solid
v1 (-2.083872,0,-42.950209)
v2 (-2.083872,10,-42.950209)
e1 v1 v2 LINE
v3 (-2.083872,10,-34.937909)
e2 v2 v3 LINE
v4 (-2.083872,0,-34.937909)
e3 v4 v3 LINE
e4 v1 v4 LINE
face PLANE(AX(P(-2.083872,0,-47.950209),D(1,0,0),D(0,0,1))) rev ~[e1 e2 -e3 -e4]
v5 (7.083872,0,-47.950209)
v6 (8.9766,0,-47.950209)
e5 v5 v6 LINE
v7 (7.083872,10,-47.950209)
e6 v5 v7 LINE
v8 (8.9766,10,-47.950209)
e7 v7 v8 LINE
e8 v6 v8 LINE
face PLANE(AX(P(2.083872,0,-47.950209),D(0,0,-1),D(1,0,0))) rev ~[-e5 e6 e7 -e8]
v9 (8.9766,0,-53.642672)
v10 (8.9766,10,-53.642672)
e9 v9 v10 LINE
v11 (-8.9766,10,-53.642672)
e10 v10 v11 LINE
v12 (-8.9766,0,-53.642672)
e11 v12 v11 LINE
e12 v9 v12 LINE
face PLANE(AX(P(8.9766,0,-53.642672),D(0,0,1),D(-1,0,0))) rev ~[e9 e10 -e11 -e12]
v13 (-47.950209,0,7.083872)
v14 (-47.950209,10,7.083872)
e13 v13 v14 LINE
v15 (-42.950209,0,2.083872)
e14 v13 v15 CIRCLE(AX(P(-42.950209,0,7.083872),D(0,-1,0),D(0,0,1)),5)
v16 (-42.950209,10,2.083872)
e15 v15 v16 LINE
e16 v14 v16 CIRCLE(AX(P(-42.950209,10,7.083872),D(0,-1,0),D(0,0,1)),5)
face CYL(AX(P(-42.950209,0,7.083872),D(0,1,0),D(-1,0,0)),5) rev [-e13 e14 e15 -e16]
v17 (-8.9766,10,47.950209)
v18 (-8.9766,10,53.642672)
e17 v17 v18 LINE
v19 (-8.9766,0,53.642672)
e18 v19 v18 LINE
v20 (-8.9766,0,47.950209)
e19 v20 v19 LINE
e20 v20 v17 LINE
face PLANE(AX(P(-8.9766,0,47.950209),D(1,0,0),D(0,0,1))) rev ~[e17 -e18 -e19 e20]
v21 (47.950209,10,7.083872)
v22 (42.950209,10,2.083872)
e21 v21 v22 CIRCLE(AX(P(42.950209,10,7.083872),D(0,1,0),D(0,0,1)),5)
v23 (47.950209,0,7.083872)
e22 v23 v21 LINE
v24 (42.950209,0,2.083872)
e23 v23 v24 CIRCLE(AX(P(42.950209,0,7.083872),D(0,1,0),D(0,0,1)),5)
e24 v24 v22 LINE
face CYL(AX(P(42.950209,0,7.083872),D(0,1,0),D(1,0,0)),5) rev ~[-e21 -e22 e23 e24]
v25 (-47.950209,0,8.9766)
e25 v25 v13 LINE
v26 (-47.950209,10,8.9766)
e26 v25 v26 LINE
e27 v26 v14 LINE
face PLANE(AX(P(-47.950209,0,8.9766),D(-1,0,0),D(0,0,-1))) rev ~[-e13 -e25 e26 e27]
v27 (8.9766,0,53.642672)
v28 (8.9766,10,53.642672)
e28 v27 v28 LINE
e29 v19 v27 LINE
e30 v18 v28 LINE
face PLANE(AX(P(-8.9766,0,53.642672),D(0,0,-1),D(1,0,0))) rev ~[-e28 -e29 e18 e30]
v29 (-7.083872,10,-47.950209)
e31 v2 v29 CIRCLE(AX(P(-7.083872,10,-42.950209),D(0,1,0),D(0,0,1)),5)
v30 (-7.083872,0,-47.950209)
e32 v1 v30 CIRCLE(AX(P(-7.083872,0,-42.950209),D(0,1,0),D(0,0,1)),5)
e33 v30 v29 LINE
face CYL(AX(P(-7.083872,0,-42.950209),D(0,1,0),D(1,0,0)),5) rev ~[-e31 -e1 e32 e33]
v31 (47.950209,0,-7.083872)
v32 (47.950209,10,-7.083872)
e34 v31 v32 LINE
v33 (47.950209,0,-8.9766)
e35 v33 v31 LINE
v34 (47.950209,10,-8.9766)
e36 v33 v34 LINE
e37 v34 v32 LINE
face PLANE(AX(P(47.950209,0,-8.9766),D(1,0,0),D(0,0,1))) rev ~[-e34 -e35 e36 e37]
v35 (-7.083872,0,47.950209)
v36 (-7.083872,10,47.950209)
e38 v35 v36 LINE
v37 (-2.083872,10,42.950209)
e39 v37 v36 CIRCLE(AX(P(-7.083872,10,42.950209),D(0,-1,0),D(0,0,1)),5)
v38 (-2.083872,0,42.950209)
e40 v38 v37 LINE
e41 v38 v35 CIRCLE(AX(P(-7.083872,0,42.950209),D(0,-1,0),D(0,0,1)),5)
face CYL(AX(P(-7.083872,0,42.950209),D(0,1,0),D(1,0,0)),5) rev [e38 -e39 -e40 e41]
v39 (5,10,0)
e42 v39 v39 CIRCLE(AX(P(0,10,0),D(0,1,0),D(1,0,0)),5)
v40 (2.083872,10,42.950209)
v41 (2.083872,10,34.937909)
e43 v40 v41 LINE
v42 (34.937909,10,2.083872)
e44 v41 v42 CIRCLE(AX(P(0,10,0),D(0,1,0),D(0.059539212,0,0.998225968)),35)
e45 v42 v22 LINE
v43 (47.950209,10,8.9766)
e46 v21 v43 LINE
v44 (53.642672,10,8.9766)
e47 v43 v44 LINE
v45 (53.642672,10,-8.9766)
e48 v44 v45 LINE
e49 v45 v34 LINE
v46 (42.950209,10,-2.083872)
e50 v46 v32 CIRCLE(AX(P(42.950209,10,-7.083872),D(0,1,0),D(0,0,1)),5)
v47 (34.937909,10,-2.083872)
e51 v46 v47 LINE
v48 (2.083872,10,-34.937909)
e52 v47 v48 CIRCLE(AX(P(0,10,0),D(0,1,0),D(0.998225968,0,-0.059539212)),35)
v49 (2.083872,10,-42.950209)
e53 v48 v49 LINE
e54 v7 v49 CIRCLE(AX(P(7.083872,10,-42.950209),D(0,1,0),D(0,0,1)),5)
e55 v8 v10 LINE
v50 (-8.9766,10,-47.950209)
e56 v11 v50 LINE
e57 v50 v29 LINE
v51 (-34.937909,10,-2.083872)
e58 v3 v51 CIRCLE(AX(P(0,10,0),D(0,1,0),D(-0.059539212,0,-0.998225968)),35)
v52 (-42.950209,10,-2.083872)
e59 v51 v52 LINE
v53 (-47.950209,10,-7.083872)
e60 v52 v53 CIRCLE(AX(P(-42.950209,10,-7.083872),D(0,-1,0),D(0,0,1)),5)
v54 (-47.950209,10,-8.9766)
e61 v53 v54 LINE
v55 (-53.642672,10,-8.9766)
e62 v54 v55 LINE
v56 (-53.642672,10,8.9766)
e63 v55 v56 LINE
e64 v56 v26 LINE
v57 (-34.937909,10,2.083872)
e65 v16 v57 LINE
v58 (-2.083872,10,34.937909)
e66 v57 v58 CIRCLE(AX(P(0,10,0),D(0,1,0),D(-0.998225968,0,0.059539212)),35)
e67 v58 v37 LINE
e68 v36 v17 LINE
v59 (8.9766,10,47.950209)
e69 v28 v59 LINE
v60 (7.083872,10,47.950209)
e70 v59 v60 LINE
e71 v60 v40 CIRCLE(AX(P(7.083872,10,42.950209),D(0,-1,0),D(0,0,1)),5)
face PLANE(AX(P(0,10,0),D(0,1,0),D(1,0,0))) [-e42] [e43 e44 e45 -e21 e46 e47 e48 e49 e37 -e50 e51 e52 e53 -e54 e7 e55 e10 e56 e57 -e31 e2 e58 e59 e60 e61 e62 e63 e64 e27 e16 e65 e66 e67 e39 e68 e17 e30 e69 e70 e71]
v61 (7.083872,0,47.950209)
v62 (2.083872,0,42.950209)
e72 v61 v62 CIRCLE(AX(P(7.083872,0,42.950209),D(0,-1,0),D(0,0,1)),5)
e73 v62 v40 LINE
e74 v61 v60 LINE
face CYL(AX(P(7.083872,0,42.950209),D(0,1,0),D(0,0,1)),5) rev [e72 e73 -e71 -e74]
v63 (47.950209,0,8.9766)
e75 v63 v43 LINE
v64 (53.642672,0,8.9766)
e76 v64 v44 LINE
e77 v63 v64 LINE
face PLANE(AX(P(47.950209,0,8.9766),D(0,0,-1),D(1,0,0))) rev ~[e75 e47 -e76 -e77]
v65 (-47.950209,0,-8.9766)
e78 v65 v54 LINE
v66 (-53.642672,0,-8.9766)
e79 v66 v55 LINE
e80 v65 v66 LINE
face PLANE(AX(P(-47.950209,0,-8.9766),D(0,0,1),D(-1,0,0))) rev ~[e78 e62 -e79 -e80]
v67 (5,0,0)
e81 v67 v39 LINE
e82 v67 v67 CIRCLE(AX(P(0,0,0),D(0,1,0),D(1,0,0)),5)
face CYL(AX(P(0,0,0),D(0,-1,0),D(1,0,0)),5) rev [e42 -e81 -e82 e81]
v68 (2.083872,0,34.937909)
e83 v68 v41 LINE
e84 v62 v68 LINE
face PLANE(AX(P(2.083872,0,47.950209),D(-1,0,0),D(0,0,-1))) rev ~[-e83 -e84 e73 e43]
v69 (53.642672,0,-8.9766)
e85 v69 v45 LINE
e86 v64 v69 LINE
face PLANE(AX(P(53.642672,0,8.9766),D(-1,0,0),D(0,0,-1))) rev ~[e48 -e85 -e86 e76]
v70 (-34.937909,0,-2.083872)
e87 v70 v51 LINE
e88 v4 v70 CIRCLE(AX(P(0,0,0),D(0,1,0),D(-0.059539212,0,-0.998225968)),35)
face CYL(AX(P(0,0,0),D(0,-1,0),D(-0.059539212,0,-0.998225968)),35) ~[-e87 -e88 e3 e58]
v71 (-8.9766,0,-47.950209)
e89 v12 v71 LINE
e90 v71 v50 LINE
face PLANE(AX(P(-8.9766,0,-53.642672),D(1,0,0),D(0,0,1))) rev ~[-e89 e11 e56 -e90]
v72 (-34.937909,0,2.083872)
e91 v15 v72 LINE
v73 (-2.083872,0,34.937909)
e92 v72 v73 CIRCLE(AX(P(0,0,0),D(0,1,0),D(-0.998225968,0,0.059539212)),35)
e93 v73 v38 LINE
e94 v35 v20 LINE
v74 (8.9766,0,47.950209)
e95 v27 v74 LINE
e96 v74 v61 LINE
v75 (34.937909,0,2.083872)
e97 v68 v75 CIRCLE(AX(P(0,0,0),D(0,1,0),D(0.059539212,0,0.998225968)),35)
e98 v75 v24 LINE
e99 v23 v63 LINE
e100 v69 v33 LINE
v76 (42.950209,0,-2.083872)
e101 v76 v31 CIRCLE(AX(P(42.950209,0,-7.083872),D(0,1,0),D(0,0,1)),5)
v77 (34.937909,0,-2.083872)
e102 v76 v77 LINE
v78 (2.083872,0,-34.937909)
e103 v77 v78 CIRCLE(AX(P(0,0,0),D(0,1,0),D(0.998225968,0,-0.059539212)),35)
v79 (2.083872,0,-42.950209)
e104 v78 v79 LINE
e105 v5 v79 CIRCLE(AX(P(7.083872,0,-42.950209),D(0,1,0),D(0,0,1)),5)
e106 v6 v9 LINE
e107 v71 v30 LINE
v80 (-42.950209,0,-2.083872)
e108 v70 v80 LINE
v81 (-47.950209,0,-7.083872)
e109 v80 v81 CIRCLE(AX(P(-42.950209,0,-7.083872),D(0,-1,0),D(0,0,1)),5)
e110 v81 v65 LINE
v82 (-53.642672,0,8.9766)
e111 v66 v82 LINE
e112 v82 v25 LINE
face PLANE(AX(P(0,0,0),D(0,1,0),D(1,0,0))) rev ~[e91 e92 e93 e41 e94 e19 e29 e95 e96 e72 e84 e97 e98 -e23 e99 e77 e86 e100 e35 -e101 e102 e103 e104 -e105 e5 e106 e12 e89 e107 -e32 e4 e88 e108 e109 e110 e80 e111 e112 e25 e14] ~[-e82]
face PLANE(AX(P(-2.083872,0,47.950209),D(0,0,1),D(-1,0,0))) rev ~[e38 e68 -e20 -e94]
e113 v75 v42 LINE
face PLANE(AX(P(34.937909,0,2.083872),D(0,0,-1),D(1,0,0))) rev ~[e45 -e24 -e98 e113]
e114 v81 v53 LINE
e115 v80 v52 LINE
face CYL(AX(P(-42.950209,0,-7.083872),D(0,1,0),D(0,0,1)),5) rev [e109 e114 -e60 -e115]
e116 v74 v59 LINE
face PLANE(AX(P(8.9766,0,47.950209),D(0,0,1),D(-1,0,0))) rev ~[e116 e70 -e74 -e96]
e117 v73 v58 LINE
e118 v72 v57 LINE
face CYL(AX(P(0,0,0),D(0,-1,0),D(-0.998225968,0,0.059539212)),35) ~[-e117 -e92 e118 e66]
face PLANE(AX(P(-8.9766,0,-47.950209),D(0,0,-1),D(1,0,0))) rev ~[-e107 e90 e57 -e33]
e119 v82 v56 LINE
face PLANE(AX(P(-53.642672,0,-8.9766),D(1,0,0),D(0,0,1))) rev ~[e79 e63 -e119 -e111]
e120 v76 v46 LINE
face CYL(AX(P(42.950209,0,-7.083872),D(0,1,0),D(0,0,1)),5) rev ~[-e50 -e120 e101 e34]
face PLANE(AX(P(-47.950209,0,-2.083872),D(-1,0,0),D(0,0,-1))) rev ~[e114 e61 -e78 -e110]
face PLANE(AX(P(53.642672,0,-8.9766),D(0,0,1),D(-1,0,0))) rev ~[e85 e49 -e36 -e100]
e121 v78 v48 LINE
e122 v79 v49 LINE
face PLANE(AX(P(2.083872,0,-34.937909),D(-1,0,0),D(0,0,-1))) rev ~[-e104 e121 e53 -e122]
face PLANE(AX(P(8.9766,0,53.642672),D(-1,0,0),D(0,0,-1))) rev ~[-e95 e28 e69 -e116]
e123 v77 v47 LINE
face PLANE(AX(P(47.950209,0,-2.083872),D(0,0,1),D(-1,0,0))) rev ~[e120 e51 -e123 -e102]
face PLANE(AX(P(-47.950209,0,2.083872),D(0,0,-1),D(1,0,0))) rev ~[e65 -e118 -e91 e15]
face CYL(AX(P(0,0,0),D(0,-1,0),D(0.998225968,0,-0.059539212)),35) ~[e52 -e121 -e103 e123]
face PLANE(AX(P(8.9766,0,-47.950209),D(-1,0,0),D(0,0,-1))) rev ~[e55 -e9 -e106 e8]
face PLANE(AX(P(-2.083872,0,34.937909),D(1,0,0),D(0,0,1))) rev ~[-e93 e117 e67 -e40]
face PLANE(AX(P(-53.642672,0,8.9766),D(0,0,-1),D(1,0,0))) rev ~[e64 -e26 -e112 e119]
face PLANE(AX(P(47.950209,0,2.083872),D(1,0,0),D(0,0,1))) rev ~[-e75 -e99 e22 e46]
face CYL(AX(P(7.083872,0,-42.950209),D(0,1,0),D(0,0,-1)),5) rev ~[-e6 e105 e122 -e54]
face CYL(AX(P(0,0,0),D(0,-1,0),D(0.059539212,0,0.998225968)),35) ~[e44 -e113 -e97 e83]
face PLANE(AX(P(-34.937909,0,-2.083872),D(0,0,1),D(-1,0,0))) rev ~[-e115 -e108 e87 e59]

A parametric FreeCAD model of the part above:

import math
import FreeCAD as App
import Part
import Sketcher

V = App.Vector


def edges_at(feature, points):
    """Names of the edges that pass closest to the given points."""
    edges = feature.Shape.Edges
    near = lambda p: min(range(len(edges)), key=lambda i: edges[i].distToShape(Part.Vertex(*p))[0])
    return sorted({f"Edge{near(p) + 1}" for p in points})

doc = App.newDocument("Part")
params = doc.addObject("Spreadsheet::Sheet", "Params")
for row, (alias, value) in enumerate([
    ("sketch1_diameter", "10 mm"),
    ("sketch1_radius", "35 mm"),
    ("pad1_length", "10 mm"),
    ("fillet_radius", "5 mm"),
], start=1):
    params.set(f"A{row}", alias)
    params.set(f"B{row}", "=" + value)
    params.setAlias(f"B{row}", alias)

body = doc.addObject("PartDesign::Body", "Body")

# Sketch on XZ plane
sketch1 = body.newObject("Sketcher::SketchObject", "Sketch")
sketch1.AttachmentSupport = (doc.getObject("XZ_Plane"), [""])
sketch1.MapMode = "FlatFace"
sketch1.addGeometry([
    Part.LineSegment(V(-2, -48, 0), V(-2, -35, 0)),  # 0
    Part.ArcOfCircle(Part.Circle(V(0, 0, 0), V(0, 0, 1), 35), math.radians(-177), math.radians(-93)),  # 1
    Part.LineSegment(V(-35, -2, 0), V(-48, -2, 0)),  # 2
    Part.LineSegment(V(-48, -2, 0), V(-48, -9, 0)),  # 3
    Part.LineSegment(V(-48, -9, 0), V(-54, -9, 0)),  # 4
    Part.LineSegment(V(-54, -9, 0), V(-54, 9, 0)),  # 5
    Part.LineSegment(V(-54, 9, 0), V(-48, 9, 0)),  # 6
    Part.LineSegment(V(-48, 9, 0), V(-48, 2, 0)),  # 7
    Part.LineSegment(V(-48, 2, 0), V(-35, 2, 0)),  # 8
    Part.ArcOfCircle(Part.Circle(V(0, 0, 0), V(0, 0, 1), 35), math.radians(93), math.radians(177)),  # 9
    Part.LineSegment(V(-2, 35, 0), V(-2, 48, 0)),  # 10
    Part.LineSegment(V(-2, 48, 0), V(-9, 48, 0)),  # 11
    Part.LineSegment(V(-9, 48, 0), V(-9, 54, 0)),  # 12
    Part.LineSegment(V(-9, 54, 0), V(9, 54, 0)),  # 13
    Part.LineSegment(V(9, 54, 0), V(9, 48, 0)),  # 14
    Part.LineSegment(V(9, 48, 0), V(2, 48, 0)),  # 15
    Part.LineSegment(V(2, 48, 0), V(2, 35, 0)),  # 16
    Part.ArcOfCircle(Part.Circle(V(0, 0, 0), V(0, 0, 1), 35), math.radians(3), math.radians(87)),  # 17
    Part.LineSegment(V(35, 2, 0), V(48, 2, 0)),  # 18
    Part.LineSegment(V(48, 2, 0), V(48, 9, 0)),  # 19
    Part.LineSegment(V(48, 9, 0), V(54, 9, 0)),  # 20
    Part.LineSegment(V(54, 9, 0), V(54, -9, 0)),  # 21
    Part.LineSegment(V(54, -9, 0), V(48, -9, 0)),  # 22
    Part.LineSegment(V(48, -9, 0), V(48, -2, 0)),  # 23
    Part.LineSegment(V(48, -2, 0), V(35, -2, 0)),  # 24
    Part.ArcOfCircle(Part.Circle(V(0, 0, 0), V(0, 0, 1), 35), math.radians(-87), math.radians(-3)),  # 25
    Part.LineSegment(V(2, -35, 0), V(2, -48, 0)),  # 26
    Part.LineSegment(V(2, -48, 0), V(9, -48, 0)),  # 27
    Part.LineSegment(V(9, -48, 0), V(9, -54, 0)),  # 28
    Part.LineSegment(V(9, -54, 0), V(-9, -54, 0)),  # 29
    Part.LineSegment(V(-9, -54, 0), V(-9, -48, 0)),  # 30
    Part.LineSegment(V(-9, -48, 0), V(-2, -48, 0)),  # 31
    Part.Circle(V(0, 0, 0), V(0, 0, 1), 5),  # 32
], False)
sketch1.addConstraint([
    Sketcher.Constraint("Coincident", 0, 2, 1, 2),
    Sketcher.Constraint("Coincident", 1, 1, 2, 1),
    Sketcher.Constraint("Coincident", 2, 2, 3, 1),
    Sketcher.Constraint("Coincident", 3, 2, 4, 1),
    Sketcher.Constraint("Coincident", 4, 2, 5, 1),
    Sketcher.Constraint("Coincident", 5, 2, 6, 1),
    Sketcher.Constraint("Coincident", 6, 2, 7, 1),
    Sketcher.Constraint("Coincident", 7, 2, 8, 1),
    Sketcher.Constraint("Coincident", 8, 2, 9, 2),
    Sketcher.Constraint("Coincident", 9, 1, 10, 1),
    Sketcher.Constraint("Coincident", 10, 2, 11, 1),
    Sketcher.Constraint("Coincident", 11, 2, 12, 1),
    Sketcher.Constraint("Coincident", 12, 2, 13, 1),
    Sketcher.Constraint("Coincident", 13, 2, 14, 1),
    Sketcher.Constraint("Coincident", 14, 2, 15, 1),
    Sketcher.Constraint("Coincident", 15, 2, 16, 1),
    Sketcher.Constraint("Coincident", 16, 2, 17, 2),
    Sketcher.Constraint("Coincident", 17, 1, 18, 1),
    Sketcher.Constraint("Coincident", 18, 2, 19, 1),
    Sketcher.Constraint("Coincident", 19, 2, 20, 1),
    Sketcher.Constraint("Coincident", 20, 2, 21, 1),
    Sketcher.Constraint("Coincident", 21, 2, 22, 1),
    Sketcher.Constraint("Coincident", 22, 2, 23, 1),
    Sketcher.Constraint("Coincident", 23, 2, 24, 1),
    Sketcher.Constraint("Coincident", 24, 2, 25, 2),
    Sketcher.Constraint("Coincident", 25, 1, 26, 1),
    Sketcher.Constraint("Coincident", 26, 2, 27, 1),
    Sketcher.Constraint("Coincident", 27, 2, 28, 1),
    Sketcher.Constraint("Coincident", 28, 2, 29, 1),
    Sketcher.Constraint("Coincident", 29, 2, 30, 1),
    Sketcher.Constraint("Coincident", 30, 2, 31, 1),
    Sketcher.Constraint("Coincident", 31, 2, 0, 1),
    Sketcher.Constraint("Vertical", 0),
    Sketcher.Constraint("Horizontal", 2),
    Sketcher.Constraint("Vertical", 3),
    Sketcher.Constraint("Horizontal", 4),
    Sketcher.Constraint("Vertical", 5),
    Sketcher.Constraint("Horizontal", 6),
    Sketcher.Constraint("Vertical", 7),
    Sketcher.Constraint("Horizontal", 8),
    Sketcher.Constraint("Vertical", 10),
    Sketcher.Constraint("Horizontal", 11),
    Sketcher.Constraint("Vertical", 12),
    Sketcher.Constraint("Horizontal", 13),
    Sketcher.Constraint("Vertical", 14),
    Sketcher.Constraint("Horizontal", 15),
    Sketcher.Constraint("Vertical", 16),
    Sketcher.Constraint("Horizontal", 18),
    Sketcher.Constraint("Vertical", 19),
    Sketcher.Constraint("Horizontal", 20),
    Sketcher.Constraint("Vertical", 21),
    Sketcher.Constraint("Horizontal", 22),
    Sketcher.Constraint("Vertical", 23),
    Sketcher.Constraint("Horizontal", 24),
    Sketcher.Constraint("Vertical", 26),
    Sketcher.Constraint("Horizontal", 27),
    Sketcher.Constraint("Vertical", 28),
    Sketcher.Constraint("Horizontal", 29),
    Sketcher.Constraint("Vertical", 30),
    Sketcher.Constraint("Horizontal", 31),
    Sketcher.Constraint("Coincident", 1, 3, -1, 1),
    Sketcher.Constraint("Coincident", 9, 3, -1, 1),
    Sketcher.Constraint("Coincident", 17, 3, -1, 1),
    Sketcher.Constraint("Coincident", 25, 3, -1, 1),
    Sketcher.Constraint("Coincident", 32, 3, -1, 1),
    Sketcher.Constraint("Equal", 1, 9),
    Sketcher.Constraint("Equal", 9, 17),
    Sketcher.Constraint("Equal", 17, 25),
    Sketcher.Constraint("Symmetric", 2, 2, 18, 2, -1, 1),
    Sketcher.Constraint("Symmetric", 4, 2, 20, 2, -1, 1),
    Sketcher.Constraint("Symmetric", 6, 2, 22, 2, -1, 1),
    Sketcher.Constraint("Symmetric", 10, 2, 26, 2, -1, 1),
    Sketcher.Constraint("Symmetric", 12, 2, 28, 2, -1, 1),
    Sketcher.Constraint("Symmetric", 14, 2, 30, 2, -1, 1),
    Sketcher.Constraint("Symmetric", 11, 2, 14, 2, -2),
    Sketcher.Constraint("Symmetric", 7, 2, 18, 2, -2),
    Sketcher.Constraint("Horizontal", 9, 1, 16, 2),
    Sketcher.Constraint("Horizontal", 6, 2, 19, 2),
    Sketcher.Constraint("Horizontal", 2, 2, 23, 2),
    Sketcher.Constraint("Horizontal", 0, 2, 25, 1),
    Sketcher.Constraint("Equal", 24, 0),
    Sketcher.Constraint("Equal", 31, 3),
    Sketcher.Constraint("Equal", 29, 5),
    Sketcher.Constraint("Equal", 22, 12),
    Sketcher.Constraint("Diameter", 32, 10.0),
    Sketcher.Constraint("Radius", 1, 35.0),
    Sketcher.Constraint("DistanceX", 2, 2, 2, 1, 13.0123),
    Sketcher.Constraint("DistanceX", 13, 1, 13, 2, 17.953199),
    Sketcher.Constraint("DistanceX", 4, 2, 4, 1, 5.692463),
    Sketcher.Constraint("DistanceX", 11, 2, 11, 1, 6.892727),
])
sketch1.setExpression("Constraints[84]", "Params.sketch1_diameter")
sketch1.setExpression("Constraints[85]", "Params.sketch1_radius")
pad1 = body.newObject("PartDesign::Pad", "Pad")
pad1.Profile = sketch1
pad1.setExpression("Length", "Params.pad1_length")
pad1.Reversed = True
doc.recompute()

fillet = body.newObject("PartDesign::Fillet", "Fillet")
fillet.Base = (pad1, edges_at(pad1, [
    (2.084, 5, 47.95),
    (-2.084, 5, 47.95),
    (-47.95, 5, 2.084),
    (-47.95, 5, -2.084),
    (-2.084, 5, -47.95),
    (2.084, 5, -47.95),
    (47.95, 5, -2.084),
    (47.95, 5, 2.084),
]))
fillet.setExpression("Radius", "Params.fillet_radius")

doc.recompute()
